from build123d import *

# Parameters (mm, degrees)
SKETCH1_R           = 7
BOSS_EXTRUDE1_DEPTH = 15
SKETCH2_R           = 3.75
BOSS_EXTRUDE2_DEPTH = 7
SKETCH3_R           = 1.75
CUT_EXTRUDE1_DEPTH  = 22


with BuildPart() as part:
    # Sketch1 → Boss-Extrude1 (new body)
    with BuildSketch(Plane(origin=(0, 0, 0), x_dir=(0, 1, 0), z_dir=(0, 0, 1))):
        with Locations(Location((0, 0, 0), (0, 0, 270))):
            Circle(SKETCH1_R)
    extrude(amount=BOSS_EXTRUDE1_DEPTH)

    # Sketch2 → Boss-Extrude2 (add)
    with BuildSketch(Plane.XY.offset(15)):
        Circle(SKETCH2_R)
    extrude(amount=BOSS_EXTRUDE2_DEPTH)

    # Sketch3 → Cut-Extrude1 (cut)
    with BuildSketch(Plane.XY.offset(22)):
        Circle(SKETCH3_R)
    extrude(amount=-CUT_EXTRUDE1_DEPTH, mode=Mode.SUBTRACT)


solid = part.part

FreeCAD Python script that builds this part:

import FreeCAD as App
import Part
import Sketcher
from FreeCAD import Vector

doc = App.newDocument("Part")
body = doc.addObject("PartDesign::Body", "Body")

sketch1 = doc.addObject("Sketcher::SketchObject", "Sketch")
body.addObject(sketch1)
sketch1.AttachmentSupport = (doc.XY_Plane, [""])
sketch1.MapMode = "FlatFace"
sketch1.addGeometry(Part.Circle(Vector(0, 0, 0), Vector(0, 0, 1), 7), False)
sketch1.addConstraint([
    Sketcher.Constraint("Coincident", 0, 3, -1, 1),
    Sketcher.Constraint("Diameter", 0, 14.0),
])
pad1 = doc.addObject("PartDesign::Pad", "Pad")
body.addObject(pad1)
pad1.Profile = sketch1
pad1.Length = 15

sketch2 = doc.addObject("Sketcher::SketchObject", "Sketch001")
body.addObject(sketch2)
sketch2.AttachmentSupport = (doc.XY_Plane, [""])
sketch2.MapMode = "FlatFace"
sketch2.AttachmentOffset = App.Placement(Vector(0, 0, 15), App.Rotation())
sketch2.addGeometry(Part.Circle(Vector(0, 0, 0), Vector(0, 0, 1), 3.8), False)
sketch2.addConstraint([
    Sketcher.Constraint("Coincident", 0, 3, -1, 1),
    Sketcher.Constraint("Diameter", 0, 7.5),
])
pad2 = doc.addObject("PartDesign::Pad", "Pad001")
body.addObject(pad2)
pad2.Profile = sketch2
pad2.Length = 7

sketch3 = doc.addObject("Sketcher::SketchObject", "Sketch002")
body.addObject(sketch3)
sketch3.AttachmentSupport = (doc.XY_Plane, [""])
sketch3.MapMode = "FlatFace"
sketch3.AttachmentOffset = App.Placement(Vector(0, 0, 22), App.Rotation())
sketch3.addGeometry(Part.Circle(Vector(0, 0, 0), Vector(0, 0, 1), 1.8), False)
sketch3.addConstraint([
    Sketcher.Constraint("Coincident", 0, 3, -1, 1),
    Sketcher.Constraint("Diameter", 0, 3.5),
])
pocket1 = doc.addObject("PartDesign::Pocket", "Pocket")
body.addObject(pocket1)
pocket1.Profile = sketch3
pocket1.Length = 22

doc.recompute()
